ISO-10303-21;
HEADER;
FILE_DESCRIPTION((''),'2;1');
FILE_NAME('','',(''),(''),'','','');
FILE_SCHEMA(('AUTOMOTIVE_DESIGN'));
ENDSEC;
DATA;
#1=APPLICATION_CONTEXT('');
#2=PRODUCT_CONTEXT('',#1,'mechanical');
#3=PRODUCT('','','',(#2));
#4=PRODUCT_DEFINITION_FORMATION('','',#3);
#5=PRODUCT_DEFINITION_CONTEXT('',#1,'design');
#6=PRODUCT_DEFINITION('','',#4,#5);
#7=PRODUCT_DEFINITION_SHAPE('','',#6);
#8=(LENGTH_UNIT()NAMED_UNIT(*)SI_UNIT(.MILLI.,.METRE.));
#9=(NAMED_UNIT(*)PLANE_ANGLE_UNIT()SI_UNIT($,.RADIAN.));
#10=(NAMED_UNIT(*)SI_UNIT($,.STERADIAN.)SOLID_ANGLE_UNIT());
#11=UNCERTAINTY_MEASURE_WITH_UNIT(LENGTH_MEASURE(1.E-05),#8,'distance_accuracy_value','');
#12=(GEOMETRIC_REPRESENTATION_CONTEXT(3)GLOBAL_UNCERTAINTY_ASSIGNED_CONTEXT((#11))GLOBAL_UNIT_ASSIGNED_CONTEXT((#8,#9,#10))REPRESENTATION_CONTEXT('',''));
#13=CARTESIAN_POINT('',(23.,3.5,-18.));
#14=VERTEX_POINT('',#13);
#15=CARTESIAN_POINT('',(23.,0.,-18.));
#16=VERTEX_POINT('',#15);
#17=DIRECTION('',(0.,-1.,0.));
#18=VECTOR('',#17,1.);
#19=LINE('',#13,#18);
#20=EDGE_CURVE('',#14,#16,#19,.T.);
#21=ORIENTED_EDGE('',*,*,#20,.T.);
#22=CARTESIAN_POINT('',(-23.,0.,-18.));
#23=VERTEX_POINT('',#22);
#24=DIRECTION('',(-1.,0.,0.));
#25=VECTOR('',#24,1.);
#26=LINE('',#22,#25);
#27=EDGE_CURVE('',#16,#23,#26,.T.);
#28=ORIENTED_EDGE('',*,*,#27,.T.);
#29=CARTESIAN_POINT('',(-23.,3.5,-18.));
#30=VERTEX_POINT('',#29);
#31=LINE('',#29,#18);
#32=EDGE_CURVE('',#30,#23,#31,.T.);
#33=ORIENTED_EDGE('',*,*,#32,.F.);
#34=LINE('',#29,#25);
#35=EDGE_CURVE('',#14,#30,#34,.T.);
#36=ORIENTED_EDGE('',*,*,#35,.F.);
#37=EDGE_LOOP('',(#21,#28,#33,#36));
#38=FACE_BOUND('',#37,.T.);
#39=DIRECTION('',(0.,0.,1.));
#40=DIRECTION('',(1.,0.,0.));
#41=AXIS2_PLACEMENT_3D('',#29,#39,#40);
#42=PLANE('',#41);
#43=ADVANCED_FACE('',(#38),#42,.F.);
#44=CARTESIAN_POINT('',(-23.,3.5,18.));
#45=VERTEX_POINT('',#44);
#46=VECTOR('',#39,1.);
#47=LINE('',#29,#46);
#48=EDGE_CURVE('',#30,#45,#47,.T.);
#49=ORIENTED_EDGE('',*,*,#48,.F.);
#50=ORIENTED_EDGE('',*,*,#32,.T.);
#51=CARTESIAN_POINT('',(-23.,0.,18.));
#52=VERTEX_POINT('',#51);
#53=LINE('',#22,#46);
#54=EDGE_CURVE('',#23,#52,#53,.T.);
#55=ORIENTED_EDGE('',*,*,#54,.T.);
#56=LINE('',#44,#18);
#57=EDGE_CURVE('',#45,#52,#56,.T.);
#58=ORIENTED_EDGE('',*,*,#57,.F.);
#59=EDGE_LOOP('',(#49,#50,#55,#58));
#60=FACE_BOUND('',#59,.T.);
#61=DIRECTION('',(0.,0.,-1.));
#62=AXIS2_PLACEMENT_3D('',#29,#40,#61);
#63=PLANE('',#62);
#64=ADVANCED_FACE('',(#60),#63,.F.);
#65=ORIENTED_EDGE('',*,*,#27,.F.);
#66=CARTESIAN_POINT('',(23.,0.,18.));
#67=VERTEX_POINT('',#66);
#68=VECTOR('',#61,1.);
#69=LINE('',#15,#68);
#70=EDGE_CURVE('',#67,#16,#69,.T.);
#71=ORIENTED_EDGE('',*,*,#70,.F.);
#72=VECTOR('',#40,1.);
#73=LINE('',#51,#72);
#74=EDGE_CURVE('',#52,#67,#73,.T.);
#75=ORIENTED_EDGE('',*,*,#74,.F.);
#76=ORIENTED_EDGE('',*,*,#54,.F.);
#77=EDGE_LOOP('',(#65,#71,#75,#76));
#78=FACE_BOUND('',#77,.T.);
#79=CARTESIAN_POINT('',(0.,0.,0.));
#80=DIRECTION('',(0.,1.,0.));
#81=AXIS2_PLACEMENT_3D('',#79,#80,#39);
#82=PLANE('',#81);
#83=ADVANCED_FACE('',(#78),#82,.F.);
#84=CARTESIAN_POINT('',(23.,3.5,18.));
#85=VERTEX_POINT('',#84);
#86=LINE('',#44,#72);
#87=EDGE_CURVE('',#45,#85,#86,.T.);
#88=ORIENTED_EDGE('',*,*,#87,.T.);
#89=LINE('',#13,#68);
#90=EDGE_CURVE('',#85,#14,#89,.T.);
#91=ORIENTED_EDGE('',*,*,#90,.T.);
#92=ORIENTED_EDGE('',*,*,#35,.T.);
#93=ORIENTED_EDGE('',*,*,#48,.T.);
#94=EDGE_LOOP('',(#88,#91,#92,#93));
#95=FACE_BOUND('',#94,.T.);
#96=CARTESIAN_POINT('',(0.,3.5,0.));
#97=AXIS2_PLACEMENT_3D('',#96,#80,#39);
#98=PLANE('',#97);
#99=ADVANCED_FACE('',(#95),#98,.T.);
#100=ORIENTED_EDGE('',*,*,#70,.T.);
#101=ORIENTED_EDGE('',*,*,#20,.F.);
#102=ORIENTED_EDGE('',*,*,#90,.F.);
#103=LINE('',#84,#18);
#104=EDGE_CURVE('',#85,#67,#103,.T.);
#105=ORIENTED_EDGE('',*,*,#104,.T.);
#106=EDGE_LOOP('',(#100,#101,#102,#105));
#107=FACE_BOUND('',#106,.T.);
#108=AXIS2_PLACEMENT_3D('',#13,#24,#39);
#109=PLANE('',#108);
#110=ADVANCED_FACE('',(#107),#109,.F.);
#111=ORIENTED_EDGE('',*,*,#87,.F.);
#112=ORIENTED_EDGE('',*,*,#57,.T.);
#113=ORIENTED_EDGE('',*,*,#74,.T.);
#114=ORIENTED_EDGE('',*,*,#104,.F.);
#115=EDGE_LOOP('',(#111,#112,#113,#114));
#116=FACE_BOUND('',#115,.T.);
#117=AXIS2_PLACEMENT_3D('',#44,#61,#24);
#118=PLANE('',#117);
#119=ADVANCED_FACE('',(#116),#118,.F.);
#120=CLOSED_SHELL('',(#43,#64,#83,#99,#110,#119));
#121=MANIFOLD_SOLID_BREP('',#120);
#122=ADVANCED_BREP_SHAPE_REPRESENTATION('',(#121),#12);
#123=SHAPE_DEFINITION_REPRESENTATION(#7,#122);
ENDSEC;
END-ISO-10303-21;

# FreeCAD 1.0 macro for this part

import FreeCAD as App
import Part
import Sketcher

V = App.Vector
Q = App.Units.Quantity

doc = App.newDocument("Part")
body = doc.addObject("PartDesign::Body", "Body")

# Sketch on XZ plane
sketch1 = body.newObject("Sketcher::SketchObject", "Sketch")
sketch1.AttachmentSupport = (doc.getObject("XZ_Plane"), [""])
sketch1.MapMode = "FlatFace"
sketch1.addGeometry([
    Part.LineSegment(V(-23, -18, 0), V(-23, 18, 0)),
    Part.LineSegment(V(-23, 18, 0), V(23, 18, 0)),
    Part.LineSegment(V(23, 18, 0), V(23, -18, 0)),
    Part.LineSegment(V(23, -18, 0), V(-23, -18, 0)),
], False)
sketch1.addConstraint([
    Sketcher.Constraint("Coincident", 0, 2, 1, 1),
    Sketcher.Constraint("Coincident", 1, 2, 2, 1),
    Sketcher.Constraint("Coincident", 2, 2, 3, 1),
    Sketcher.Constraint("Coincident", 3, 2, 0, 1),
    Sketcher.Constraint("Vertical", 0),
    Sketcher.Constraint("Horizontal", 1),
    Sketcher.Constraint("Vertical", 2),
    Sketcher.Constraint("Horizontal", 3),
    Sketcher.Constraint("Symmetric", 0, 2, 2, 2, -1, 1),
    Sketcher.Constraint("DistanceX", 1, 1, 1, 2, Q("46 mm")),
    Sketcher.Constraint("DistanceY", 0, 1, 0, 2, Q("36 mm")),
])
pad1 = body.newObject("PartDesign::Pad", "Pad")
pad1.Profile = sketch1
pad1.Length = 3.5
pad1.Reversed = True

doc.recompute()
